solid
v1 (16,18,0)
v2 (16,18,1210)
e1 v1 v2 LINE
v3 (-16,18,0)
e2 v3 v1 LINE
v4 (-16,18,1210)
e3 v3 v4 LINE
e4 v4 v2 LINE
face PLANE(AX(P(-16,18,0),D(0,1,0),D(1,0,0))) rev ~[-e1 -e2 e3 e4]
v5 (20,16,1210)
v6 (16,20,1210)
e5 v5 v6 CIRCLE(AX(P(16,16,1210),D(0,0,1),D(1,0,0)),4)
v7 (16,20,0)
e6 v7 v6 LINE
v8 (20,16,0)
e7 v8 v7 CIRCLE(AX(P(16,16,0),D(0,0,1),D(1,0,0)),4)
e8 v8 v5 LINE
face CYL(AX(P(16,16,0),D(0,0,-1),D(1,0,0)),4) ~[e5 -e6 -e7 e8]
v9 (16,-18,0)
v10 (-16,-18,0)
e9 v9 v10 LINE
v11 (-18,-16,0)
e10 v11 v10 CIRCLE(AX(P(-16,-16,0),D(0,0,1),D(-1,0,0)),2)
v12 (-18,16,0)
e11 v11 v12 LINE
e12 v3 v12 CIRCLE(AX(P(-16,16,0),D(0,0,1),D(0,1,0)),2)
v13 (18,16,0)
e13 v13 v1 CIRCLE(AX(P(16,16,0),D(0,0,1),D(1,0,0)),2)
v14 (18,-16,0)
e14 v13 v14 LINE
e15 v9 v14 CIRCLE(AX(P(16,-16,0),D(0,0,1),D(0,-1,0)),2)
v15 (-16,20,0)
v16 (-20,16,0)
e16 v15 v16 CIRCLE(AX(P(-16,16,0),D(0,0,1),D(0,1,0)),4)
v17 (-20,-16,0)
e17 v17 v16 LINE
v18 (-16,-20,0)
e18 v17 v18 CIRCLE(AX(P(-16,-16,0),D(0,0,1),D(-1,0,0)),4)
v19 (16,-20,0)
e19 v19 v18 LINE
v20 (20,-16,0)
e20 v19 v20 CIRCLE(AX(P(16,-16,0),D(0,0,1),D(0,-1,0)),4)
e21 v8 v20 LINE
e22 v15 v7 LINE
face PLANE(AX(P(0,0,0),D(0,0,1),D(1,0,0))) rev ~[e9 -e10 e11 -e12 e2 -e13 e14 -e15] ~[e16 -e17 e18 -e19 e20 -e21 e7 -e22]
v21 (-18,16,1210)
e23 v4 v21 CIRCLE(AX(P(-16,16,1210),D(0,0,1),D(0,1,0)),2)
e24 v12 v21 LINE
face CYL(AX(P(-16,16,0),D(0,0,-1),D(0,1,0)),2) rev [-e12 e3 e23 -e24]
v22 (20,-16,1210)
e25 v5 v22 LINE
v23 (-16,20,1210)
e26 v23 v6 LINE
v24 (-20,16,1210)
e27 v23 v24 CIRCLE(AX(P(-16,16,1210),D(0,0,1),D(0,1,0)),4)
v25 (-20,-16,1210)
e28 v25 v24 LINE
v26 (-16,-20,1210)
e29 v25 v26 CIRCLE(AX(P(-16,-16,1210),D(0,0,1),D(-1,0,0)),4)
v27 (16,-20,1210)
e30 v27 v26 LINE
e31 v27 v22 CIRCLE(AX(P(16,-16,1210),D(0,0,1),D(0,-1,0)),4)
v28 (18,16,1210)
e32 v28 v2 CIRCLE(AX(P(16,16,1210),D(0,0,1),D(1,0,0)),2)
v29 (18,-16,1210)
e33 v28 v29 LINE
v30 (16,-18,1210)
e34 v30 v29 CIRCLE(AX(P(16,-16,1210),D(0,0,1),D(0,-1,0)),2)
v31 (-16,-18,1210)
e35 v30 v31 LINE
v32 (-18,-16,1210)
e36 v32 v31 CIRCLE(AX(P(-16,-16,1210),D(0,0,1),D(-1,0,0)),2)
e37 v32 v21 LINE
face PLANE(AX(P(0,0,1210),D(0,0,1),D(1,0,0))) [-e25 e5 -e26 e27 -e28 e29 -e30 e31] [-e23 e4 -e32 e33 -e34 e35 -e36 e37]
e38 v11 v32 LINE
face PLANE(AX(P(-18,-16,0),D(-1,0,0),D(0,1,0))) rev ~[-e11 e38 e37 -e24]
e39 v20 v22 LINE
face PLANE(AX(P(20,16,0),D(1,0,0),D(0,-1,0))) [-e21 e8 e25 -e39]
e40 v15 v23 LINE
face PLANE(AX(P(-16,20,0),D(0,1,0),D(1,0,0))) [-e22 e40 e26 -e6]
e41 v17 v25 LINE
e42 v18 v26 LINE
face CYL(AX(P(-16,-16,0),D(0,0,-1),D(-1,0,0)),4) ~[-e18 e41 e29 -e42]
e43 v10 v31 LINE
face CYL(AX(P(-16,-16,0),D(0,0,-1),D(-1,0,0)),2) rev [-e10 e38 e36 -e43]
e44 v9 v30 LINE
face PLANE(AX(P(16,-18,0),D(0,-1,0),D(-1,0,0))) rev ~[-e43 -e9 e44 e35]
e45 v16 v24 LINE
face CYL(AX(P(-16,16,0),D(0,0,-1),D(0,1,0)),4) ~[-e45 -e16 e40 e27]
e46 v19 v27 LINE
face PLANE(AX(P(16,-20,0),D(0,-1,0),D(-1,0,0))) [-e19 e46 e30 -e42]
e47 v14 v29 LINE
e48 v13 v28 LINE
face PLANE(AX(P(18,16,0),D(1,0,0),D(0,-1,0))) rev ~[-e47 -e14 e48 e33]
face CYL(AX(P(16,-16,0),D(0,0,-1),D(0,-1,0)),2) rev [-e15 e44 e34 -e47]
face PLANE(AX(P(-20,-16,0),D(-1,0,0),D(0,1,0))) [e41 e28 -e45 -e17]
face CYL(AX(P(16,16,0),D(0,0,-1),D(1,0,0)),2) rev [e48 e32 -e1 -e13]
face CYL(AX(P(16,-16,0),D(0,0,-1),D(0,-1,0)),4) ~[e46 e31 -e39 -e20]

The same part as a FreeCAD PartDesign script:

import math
import FreeCAD as App
import Part
import Sketcher

V = App.Vector
Q = App.Units.Quantity

doc = App.newDocument("Part")
params = doc.addObject("Spreadsheet::Sheet", "Params")
for row, (alias, value) in enumerate([
    ("sketch1_radius", "4 mm"),
    ("sketch1_radius2", "2 mm"),
    ("pad1_length", "1210 mm"),
], start=1):
    params.set(f"A{row}", alias)
    params.set(f"B{row}", "=" + value)
    params.setAlias(f"B{row}", alias)

body = doc.addObject("PartDesign::Body", "Body")

sketch1 = doc.addObject("Sketcher::SketchObject", "Sketch")
body.addObject(sketch1)
sketch1.AttachmentSupport = (doc.XY_Plane, [""])
sketch1.MapMode = "FlatFace"
sketch1.addGeometry(Part.LineSegment(V(-20, 16, 0), V(-20, -16, 0)), False)
sketch1.addGeometry(Part.ArcOfCircle(Part.Circle(V(-16, -16, 0), V(0, 0, 1), 4), math.radians(180), math.radians(270)), False)
sketch1.addGeometry(Part.LineSegment(V(-16, -20, 0), V(16, -20, 0)), False)
sketch1.addGeometry(Part.ArcOfCircle(Part.Circle(V(16, -16, 0), V(0, 0, 1), 4), math.radians(-90), math.radians(0)), False)
sketch1.addGeometry(Part.LineSegment(V(20, -16, 0), V(20, 16, 0)), False)
sketch1.addGeometry(Part.ArcOfCircle(Part.Circle(V(16, 16, 0), V(0, 0, 1), 4), math.radians(0), math.radians(90)), False)
sketch1.addGeometry(Part.LineSegment(V(16, 20, 0), V(-16, 20, 0)), False)
sketch1.addGeometry(Part.ArcOfCircle(Part.Circle(V(-16, 16, 0), V(0, 0, 1), 4), math.radians(90), math.radians(180)), False)
sketch1.addGeometry(Part.ArcOfCircle(Part.Circle(V(-16, 16, 0), V(0, 0, 1), 2), math.radians(90), math.radians(180)), False)
sketch1.addGeometry(Part.LineSegment(V(-16, 18, 0), V(16, 18, 0)), False)
sketch1.addGeometry(Part.ArcOfCircle(Part.Circle(V(16, 16, 0), V(0, 0, 1), 2), math.radians(0), math.radians(90)), False)
sketch1.addGeometry(Part.LineSegment(V(18, 16, 0), V(18, -16, 0)), False)
sketch1.addGeometry(Part.ArcOfCircle(Part.Circle(V(16, -16, 0), V(0, 0, 1), 2), math.radians(-90), math.radians(0)), False)
sketch1.addGeometry(Part.LineSegment(V(16, -18, 0), V(-16, -18, 0)), False)
sketch1.addGeometry(Part.ArcOfCircle(Part.Circle(V(-16, -16, 0), V(0, 0, 1), 2), math.radians(180), math.radians(270)), False)
sketch1.addGeometry(Part.LineSegment(V(-18, -16, 0), V(-18, 16, 0)), False)
sketch1.addConstraint(Sketcher.Constraint("Tangent", 0, 2, 1, 1))
sketch1.addConstraint(Sketcher.Constraint("Tangent", 1, 2, 2, 1))
sketch1.addConstraint(Sketcher.Constraint("Tangent", 2, 2, 3, 1))
sketch1.addConstraint(Sketcher.Constraint("Tangent", 3, 2, 4, 1))
sketch1.addConstraint(Sketcher.Constraint("Tangent", 4, 2, 5, 1))
sketch1.addConstraint(Sketcher.Constraint("Tangent", 5, 2, 6, 1))
sketch1.addConstraint(Sketcher.Constraint("Tangent", 6, 2, 7, 1))
sketch1.addConstraint(Sketcher.Constraint("Tangent", 7, 2, 0, 1))
sketch1.addConstraint(Sketcher.Constraint("Tangent", 8, 1, 9, 1))
sketch1.addConstraint(Sketcher.Constraint("Tangent", 9, 2, 10, 2))
sketch1.addConstraint(Sketcher.Constraint("Tangent", 10, 1, 11, 1))
sketch1.addConstraint(Sketcher.Constraint("Tangent", 11, 2, 12, 2))
sketch1.addConstraint(Sketcher.Constraint("Tangent", 12, 1, 13, 1))
sketch1.addConstraint(Sketcher.Constraint("Tangent", 13, 2, 14, 2))
sketch1.addConstraint(Sketcher.Constraint("Tangent", 14, 1, 15, 1))
sketch1.addConstraint(Sketcher.Constraint("Tangent", 15, 2, 8, 2))
sketch1.addConstraint(Sketcher.Constraint("Vertical", 0))
sketch1.addConstraint(Sketcher.Constraint("Horizontal", 2))
sketch1.addConstraint(Sketcher.Constraint("Vertical", 4))
sketch1.addConstraint(Sketcher.Constraint("Horizontal", 6))
sketch1.addConstraint(Sketcher.Constraint("Horizontal", 9))
sketch1.addConstraint(Sketcher.Constraint("Vertical", 11))
sketch1.addConstraint(Sketcher.Constraint("Horizontal", 13))
sketch1.addConstraint(Sketcher.Constraint("Vertical", 15))
sketch1.addConstraint(Sketcher.Constraint("Coincident", 8, 3, 7, 3))
sketch1.addConstraint(Sketcher.Constraint("Coincident", 10, 3, 5, 3))
sketch1.addConstraint(Sketcher.Constraint("Coincident", 12, 3, 3, 3))
sketch1.addConstraint(Sketcher.Constraint("Equal", 1, 3))
sketch1.addConstraint(Sketcher.Constraint("Equal", 3, 5))
sketch1.addConstraint(Sketcher.Constraint("Equal", 5, 7))
sketch1.addConstraint(Sketcher.Constraint("Equal", 12, 14))
sketch1.addConstraint(Sketcher.Constraint("Symmetric", 1, 3, 5, 3, -1, 1))
sketch1.addConstraint(Sketcher.Constraint("Equal", 13, 0))
sketch1.addConstraint(Sketcher.Constraint("Radius", 1, Q("4 mm")))
sketch1.addConstraint(Sketcher.Constraint("Radius", 8, Q("2 mm")))
sketch1.addConstraint(Sketcher.Constraint("DistanceX", 0, 2, -1, 1, Q("20 mm")))
sketch1.setExpression("Constraints[33]", "Params.sketch1_radius")
sketch1.setExpression("Constraints[34]", "Params.sketch1_radius2")
pad1 = doc.addObject("PartDesign::Pad", "Pad")
body.addObject(pad1)
pad1.Profile = sketch1
pad1.setExpression("Length", "Params.pad1_length")

doc.recompute()
